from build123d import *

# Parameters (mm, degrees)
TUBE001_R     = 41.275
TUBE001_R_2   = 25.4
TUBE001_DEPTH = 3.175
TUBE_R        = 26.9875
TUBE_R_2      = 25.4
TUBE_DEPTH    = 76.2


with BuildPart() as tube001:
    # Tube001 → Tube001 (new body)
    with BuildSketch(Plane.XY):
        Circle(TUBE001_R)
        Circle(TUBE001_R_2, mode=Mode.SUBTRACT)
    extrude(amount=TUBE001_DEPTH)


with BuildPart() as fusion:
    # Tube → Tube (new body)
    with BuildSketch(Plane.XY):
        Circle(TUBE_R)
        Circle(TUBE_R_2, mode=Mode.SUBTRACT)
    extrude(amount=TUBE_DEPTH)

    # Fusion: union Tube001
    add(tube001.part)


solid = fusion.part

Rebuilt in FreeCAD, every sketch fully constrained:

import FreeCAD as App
import Part
import Sketcher
Q = App.Units.Quantity

doc = App.newDocument("Part")
body = doc.addObject("PartDesign::Body", "Body")

sketch1 = body.newObject("Sketcher::SketchObject", "Sketch")
sketch1.AttachmentSupport = (doc.getObject("XY_Plane"), [""])
sketch1.MapMode = "FlatFace"
sketch1.addGeometry(Part.Circle(App.Vector(0, 0, 0), App.Vector(0, 0, 1), 41), False)
sketch1.addGeometry(Part.Circle(App.Vector(0, 0, 0), App.Vector(0, 0, 1), 25), False)
sketch1.addConstraint(Sketcher.Constraint("Coincident", 0, 3, -1, 1))
sketch1.addConstraint(Sketcher.Constraint("Coincident", 1, 3, -1, 1))
sketch1.addConstraint(Sketcher.Constraint("Diameter", 1, Q("2 in")))
sketch1.addConstraint(Sketcher.Constraint("Diameter", 0, Q("3.25 in")))
pad1 = body.newObject("PartDesign::Pad", "Pad")
pad1.Profile = sketch1
pad1.Length = Q("0.125 in")
body2 = doc.addObject("PartDesign::Body", "Body001")

sketch2 = body2.newObject("Sketcher::SketchObject", "Sketch001")
sketch2.AttachmentSupport = (doc.getObject("XY_Plane001"), [""])
sketch2.MapMode = "FlatFace"
sketch2.addGeometry(Part.Circle(App.Vector(0, 0, 0), App.Vector(0, 0, 1), 27), False)
sketch2.addGeometry(Part.Circle(App.Vector(0, 0, 0), App.Vector(0, 0, 1), 25), False)
sketch2.addConstraint(Sketcher.Constraint("Coincident", 0, 3, -1, 1))
sketch2.addConstraint(Sketcher.Constraint("Coincident", 1, 3, -1, 1))
sketch2.addConstraint(Sketcher.Constraint("Diameter", 1, Q("2 in")))
sketch2.addConstraint(Sketcher.Constraint("Diameter", 0, Q("2.125 in")))
pad2 = body2.newObject("PartDesign::Pad", "Pad001")
pad2.Profile = sketch2
pad2.Length = Q("3 in")
doc.recompute()

boolean = body2.newObject("PartDesign::Boolean", "Boolean")
boolean.Type = "Fuse"
boolean.addObjects([body])

doc.recompute()
